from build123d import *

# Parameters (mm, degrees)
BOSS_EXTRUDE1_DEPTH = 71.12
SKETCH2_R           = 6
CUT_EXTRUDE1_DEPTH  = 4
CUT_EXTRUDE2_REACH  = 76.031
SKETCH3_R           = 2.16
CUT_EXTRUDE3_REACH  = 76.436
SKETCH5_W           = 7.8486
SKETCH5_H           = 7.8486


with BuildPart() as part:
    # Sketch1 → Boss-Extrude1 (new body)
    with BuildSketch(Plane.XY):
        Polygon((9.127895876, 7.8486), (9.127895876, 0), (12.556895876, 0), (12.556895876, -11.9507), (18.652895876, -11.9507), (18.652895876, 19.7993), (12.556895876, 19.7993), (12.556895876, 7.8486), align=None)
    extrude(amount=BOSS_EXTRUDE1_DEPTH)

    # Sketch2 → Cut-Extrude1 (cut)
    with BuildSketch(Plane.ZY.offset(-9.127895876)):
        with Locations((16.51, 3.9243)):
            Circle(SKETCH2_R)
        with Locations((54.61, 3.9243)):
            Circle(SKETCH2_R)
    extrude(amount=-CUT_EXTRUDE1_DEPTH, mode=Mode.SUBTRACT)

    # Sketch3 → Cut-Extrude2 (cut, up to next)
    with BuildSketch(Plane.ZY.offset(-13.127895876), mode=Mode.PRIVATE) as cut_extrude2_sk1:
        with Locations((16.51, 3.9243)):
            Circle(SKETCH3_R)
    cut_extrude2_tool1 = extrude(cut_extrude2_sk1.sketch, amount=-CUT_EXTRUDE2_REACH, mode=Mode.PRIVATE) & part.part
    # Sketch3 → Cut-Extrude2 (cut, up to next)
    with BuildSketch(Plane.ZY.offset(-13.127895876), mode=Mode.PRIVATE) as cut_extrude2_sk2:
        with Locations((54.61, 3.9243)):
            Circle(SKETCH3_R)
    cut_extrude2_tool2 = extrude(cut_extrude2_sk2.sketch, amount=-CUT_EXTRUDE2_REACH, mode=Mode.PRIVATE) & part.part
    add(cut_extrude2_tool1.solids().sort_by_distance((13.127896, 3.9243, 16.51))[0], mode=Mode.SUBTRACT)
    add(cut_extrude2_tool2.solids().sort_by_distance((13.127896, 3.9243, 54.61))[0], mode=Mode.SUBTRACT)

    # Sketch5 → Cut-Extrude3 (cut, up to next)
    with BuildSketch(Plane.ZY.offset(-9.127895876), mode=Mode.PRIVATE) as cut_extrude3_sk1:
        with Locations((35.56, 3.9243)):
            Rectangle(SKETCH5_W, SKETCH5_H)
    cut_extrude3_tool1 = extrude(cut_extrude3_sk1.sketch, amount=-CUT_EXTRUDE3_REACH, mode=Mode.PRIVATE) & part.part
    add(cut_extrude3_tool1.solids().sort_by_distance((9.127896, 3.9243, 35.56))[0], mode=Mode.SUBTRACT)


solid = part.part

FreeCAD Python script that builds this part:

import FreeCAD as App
import Part
import Sketcher

V = App.Vector
Q = App.Units.Quantity


def add_polygon(sketch, points):
    """Adds a closed chain of lines whose ends are joined by coincident constraints."""
    first, n = sketch.GeometryCount, len(points)
    for a, b in zip(points, points[1:] + points[:1]):
        sketch.addGeometry(Part.LineSegment(App.Vector(*a, 0), App.Vector(*b, 0)), False)
    for i in range(n):
        sketch.addConstraint(Sketcher.Constraint("Coincident", first + i, 2, first + (i + 1) % n, 1))

doc = App.newDocument("Part")
body = doc.addObject("PartDesign::Body", "Body")

# Sketch on XY plane
sketch1 = doc.addObject("Sketcher::SketchObject", "Sketch")
body.addObject(sketch1)
sketch1.AttachmentSupport = (doc.XY_Plane, [""])
sketch1.MapMode = "FlatFace"
add_polygon(sketch1, [(9.1, 7.8), (9.1, 0), (12.6, 0), (12.6, -12), (18.7, -12), (18.7, 19.8), (12.6, 19.8), (12.6, 7.8)])  # lines 0-7
sketch1.addConstraint([
    Sketcher.Constraint("Vertical", 0),
    Sketcher.Constraint("Horizontal", 1),
    Sketcher.Constraint("Vertical", 2),
    Sketcher.Constraint("Horizontal", 3),
    Sketcher.Constraint("Vertical", 4),
    Sketcher.Constraint("Horizontal", 5),
    Sketcher.Constraint("Vertical", 6),
    Sketcher.Constraint("Horizontal", 7),
    Sketcher.Constraint("PointOnObject", 0, 2, -1),
    Sketcher.Constraint("Vertical", 2, 2, 5, 2),
    Sketcher.Constraint("Equal", 2, 6),
    Sketcher.Constraint("DistanceX", 3, 1, 3, 2, Q("0.24 in")),
    Sketcher.Constraint("DistanceY", 4, 1, 4, 2, Q("1.25 in")),
    Sketcher.Constraint("DistanceX", 1, 1, 1, 2, Q("0.135 in")),
    Sketcher.Constraint("DistanceY", 0, 2, 0, 1, Q("0.309 in")),
    Sketcher.Constraint("DistanceX", -1, 1, 0, 2, Q("9.127896 mm")),
])
pad1 = doc.addObject("PartDesign::Pad", "Pad")
body.addObject(pad1)
pad1.Profile = sketch1
pad1.Length = Q("2.8 in")

# Sketch on YZ plane
sketch2 = doc.addObject("Sketcher::SketchObject", "Sketch001")
body.addObject(sketch2)
sketch2.AttachmentSupport = (doc.YZ_Plane, [""])
sketch2.MapMode = "FlatFace"
sketch2.AttachmentOffset = App.Placement(V(0, 0, 9.127896), App.Rotation())
sketch2.addGeometry([
    Part.Circle(V(4, 17, 0), V(0, 0, 1), 6),
    Part.Circle(V(4, 55, 0), V(0, 0, 1), 6),
], False)
sketch2.addConstraint([
    Sketcher.Constraint("Equal", 0, 1),
    Sketcher.Constraint("Vertical", 0, 3, 1, 3),
    Sketcher.Constraint("DistanceY", 0, 3, 1, 3, Q("1.5 in")),
    Sketcher.Constraint("Diameter", 0, Q("12 mm")),
    Sketcher.Constraint("DistanceY", -1, 1, 0, 3, Q("0.65 in")),
    Sketcher.Constraint("DistanceX", -1, 1, 0, 3, Q("0.1545 in")),
])
pocket1 = doc.addObject("PartDesign::Pocket", "Pocket")
body.addObject(pocket1)
pocket1.Profile = sketch2
pocket1.Length = 4
pocket1.Reversed = True

# Sketch on YZ plane
sketch3 = doc.addObject("Sketcher::SketchObject", "Sketch002")
body.addObject(sketch3)
sketch3.AttachmentSupport = (doc.YZ_Plane, [""])
sketch3.MapMode = "FlatFace"
sketch3.AttachmentOffset = App.Placement(V(0, 0, 13.127896), App.Rotation())
sketch3.addGeometry(Part.Circle(V(3.9, 16.5, 0), V(0, 0, 1), 2.2), False)
sketch3.addConstraint([
    Sketcher.Constraint("Diameter", 0, Q("4.32 mm")),
    Sketcher.Constraint("DistanceY", -1, 1, 0, 3, Q("0.65 in")),
    Sketcher.Constraint("DistanceX", -1, 1, 0, 3, Q("0.1545 in")),
])
pocket2 = doc.addObject("PartDesign::Pocket", "Pocket001")
body.addObject(pocket2)
pocket2.Profile = sketch3
pocket2.Type = "UpToFirst"
pocket2.Reversed = True

# Sketch on YZ plane
sketch4 = doc.addObject("Sketcher::SketchObject", "Sketch003")
body.addObject(sketch4)
sketch4.AttachmentSupport = (doc.YZ_Plane, [""])
sketch4.MapMode = "FlatFace"
sketch4.AttachmentOffset = App.Placement(V(0, 0, 13.127896), App.Rotation())
sketch4.addGeometry(Part.Circle(V(3.9, 54.6, 0), V(0, 0, 1), 2.2), False)
sketch4.addConstraint([
    Sketcher.Constraint("Diameter", 0, Q("4.32 mm")),
    Sketcher.Constraint("DistanceY", -1, 1, 0, 3, Q("2.15 in")),
    Sketcher.Constraint("DistanceX", -1, 1, 0, 3, Q("0.1545 in")),
])
pocket3 = doc.addObject("PartDesign::Pocket", "Pocket002")
body.addObject(pocket3)
pocket3.Profile = sketch4
pocket3.Type = "UpToFirst"
pocket3.Reversed = True

# Sketch on YZ plane
sketch5 = doc.addObject("Sketcher::SketchObject", "Sketch004")
body.addObject(sketch5)
sketch5.AttachmentSupport = (doc.YZ_Plane, [""])
sketch5.MapMode = "FlatFace"
sketch5.AttachmentOffset = App.Placement(V(0, 0, 9.127896), App.Rotation())
add_polygon(sketch5, [(8, 32), (0, 32), (0, 39), (8, 39)])  # lines 0-3
sketch5.addConstraint([
    Sketcher.Constraint("Horizontal", 0),
    Sketcher.Constraint("Vertical", 1),
    Sketcher.Constraint("Horizontal", 2),
    Sketcher.Constraint("Vertical", 3),
    Sketcher.Constraint("PointOnObject", 0, 2, -2),
    Sketcher.Constraint("Equal", 2, 1),
    Sketcher.Constraint("DistanceX", 0, 2, 0, 1, Q("0.309 in")),
    Sketcher.Constraint("DistanceY", -1, 1, 0, 2, Q("1.2455 in")),
])
pocket4 = doc.addObject("PartDesign::Pocket", "Pocket003")
body.addObject(pocket4)
pocket4.Profile = sketch5
pocket4.Type = "UpToFirst"
pocket4.Reversed = True

doc.recompute()
